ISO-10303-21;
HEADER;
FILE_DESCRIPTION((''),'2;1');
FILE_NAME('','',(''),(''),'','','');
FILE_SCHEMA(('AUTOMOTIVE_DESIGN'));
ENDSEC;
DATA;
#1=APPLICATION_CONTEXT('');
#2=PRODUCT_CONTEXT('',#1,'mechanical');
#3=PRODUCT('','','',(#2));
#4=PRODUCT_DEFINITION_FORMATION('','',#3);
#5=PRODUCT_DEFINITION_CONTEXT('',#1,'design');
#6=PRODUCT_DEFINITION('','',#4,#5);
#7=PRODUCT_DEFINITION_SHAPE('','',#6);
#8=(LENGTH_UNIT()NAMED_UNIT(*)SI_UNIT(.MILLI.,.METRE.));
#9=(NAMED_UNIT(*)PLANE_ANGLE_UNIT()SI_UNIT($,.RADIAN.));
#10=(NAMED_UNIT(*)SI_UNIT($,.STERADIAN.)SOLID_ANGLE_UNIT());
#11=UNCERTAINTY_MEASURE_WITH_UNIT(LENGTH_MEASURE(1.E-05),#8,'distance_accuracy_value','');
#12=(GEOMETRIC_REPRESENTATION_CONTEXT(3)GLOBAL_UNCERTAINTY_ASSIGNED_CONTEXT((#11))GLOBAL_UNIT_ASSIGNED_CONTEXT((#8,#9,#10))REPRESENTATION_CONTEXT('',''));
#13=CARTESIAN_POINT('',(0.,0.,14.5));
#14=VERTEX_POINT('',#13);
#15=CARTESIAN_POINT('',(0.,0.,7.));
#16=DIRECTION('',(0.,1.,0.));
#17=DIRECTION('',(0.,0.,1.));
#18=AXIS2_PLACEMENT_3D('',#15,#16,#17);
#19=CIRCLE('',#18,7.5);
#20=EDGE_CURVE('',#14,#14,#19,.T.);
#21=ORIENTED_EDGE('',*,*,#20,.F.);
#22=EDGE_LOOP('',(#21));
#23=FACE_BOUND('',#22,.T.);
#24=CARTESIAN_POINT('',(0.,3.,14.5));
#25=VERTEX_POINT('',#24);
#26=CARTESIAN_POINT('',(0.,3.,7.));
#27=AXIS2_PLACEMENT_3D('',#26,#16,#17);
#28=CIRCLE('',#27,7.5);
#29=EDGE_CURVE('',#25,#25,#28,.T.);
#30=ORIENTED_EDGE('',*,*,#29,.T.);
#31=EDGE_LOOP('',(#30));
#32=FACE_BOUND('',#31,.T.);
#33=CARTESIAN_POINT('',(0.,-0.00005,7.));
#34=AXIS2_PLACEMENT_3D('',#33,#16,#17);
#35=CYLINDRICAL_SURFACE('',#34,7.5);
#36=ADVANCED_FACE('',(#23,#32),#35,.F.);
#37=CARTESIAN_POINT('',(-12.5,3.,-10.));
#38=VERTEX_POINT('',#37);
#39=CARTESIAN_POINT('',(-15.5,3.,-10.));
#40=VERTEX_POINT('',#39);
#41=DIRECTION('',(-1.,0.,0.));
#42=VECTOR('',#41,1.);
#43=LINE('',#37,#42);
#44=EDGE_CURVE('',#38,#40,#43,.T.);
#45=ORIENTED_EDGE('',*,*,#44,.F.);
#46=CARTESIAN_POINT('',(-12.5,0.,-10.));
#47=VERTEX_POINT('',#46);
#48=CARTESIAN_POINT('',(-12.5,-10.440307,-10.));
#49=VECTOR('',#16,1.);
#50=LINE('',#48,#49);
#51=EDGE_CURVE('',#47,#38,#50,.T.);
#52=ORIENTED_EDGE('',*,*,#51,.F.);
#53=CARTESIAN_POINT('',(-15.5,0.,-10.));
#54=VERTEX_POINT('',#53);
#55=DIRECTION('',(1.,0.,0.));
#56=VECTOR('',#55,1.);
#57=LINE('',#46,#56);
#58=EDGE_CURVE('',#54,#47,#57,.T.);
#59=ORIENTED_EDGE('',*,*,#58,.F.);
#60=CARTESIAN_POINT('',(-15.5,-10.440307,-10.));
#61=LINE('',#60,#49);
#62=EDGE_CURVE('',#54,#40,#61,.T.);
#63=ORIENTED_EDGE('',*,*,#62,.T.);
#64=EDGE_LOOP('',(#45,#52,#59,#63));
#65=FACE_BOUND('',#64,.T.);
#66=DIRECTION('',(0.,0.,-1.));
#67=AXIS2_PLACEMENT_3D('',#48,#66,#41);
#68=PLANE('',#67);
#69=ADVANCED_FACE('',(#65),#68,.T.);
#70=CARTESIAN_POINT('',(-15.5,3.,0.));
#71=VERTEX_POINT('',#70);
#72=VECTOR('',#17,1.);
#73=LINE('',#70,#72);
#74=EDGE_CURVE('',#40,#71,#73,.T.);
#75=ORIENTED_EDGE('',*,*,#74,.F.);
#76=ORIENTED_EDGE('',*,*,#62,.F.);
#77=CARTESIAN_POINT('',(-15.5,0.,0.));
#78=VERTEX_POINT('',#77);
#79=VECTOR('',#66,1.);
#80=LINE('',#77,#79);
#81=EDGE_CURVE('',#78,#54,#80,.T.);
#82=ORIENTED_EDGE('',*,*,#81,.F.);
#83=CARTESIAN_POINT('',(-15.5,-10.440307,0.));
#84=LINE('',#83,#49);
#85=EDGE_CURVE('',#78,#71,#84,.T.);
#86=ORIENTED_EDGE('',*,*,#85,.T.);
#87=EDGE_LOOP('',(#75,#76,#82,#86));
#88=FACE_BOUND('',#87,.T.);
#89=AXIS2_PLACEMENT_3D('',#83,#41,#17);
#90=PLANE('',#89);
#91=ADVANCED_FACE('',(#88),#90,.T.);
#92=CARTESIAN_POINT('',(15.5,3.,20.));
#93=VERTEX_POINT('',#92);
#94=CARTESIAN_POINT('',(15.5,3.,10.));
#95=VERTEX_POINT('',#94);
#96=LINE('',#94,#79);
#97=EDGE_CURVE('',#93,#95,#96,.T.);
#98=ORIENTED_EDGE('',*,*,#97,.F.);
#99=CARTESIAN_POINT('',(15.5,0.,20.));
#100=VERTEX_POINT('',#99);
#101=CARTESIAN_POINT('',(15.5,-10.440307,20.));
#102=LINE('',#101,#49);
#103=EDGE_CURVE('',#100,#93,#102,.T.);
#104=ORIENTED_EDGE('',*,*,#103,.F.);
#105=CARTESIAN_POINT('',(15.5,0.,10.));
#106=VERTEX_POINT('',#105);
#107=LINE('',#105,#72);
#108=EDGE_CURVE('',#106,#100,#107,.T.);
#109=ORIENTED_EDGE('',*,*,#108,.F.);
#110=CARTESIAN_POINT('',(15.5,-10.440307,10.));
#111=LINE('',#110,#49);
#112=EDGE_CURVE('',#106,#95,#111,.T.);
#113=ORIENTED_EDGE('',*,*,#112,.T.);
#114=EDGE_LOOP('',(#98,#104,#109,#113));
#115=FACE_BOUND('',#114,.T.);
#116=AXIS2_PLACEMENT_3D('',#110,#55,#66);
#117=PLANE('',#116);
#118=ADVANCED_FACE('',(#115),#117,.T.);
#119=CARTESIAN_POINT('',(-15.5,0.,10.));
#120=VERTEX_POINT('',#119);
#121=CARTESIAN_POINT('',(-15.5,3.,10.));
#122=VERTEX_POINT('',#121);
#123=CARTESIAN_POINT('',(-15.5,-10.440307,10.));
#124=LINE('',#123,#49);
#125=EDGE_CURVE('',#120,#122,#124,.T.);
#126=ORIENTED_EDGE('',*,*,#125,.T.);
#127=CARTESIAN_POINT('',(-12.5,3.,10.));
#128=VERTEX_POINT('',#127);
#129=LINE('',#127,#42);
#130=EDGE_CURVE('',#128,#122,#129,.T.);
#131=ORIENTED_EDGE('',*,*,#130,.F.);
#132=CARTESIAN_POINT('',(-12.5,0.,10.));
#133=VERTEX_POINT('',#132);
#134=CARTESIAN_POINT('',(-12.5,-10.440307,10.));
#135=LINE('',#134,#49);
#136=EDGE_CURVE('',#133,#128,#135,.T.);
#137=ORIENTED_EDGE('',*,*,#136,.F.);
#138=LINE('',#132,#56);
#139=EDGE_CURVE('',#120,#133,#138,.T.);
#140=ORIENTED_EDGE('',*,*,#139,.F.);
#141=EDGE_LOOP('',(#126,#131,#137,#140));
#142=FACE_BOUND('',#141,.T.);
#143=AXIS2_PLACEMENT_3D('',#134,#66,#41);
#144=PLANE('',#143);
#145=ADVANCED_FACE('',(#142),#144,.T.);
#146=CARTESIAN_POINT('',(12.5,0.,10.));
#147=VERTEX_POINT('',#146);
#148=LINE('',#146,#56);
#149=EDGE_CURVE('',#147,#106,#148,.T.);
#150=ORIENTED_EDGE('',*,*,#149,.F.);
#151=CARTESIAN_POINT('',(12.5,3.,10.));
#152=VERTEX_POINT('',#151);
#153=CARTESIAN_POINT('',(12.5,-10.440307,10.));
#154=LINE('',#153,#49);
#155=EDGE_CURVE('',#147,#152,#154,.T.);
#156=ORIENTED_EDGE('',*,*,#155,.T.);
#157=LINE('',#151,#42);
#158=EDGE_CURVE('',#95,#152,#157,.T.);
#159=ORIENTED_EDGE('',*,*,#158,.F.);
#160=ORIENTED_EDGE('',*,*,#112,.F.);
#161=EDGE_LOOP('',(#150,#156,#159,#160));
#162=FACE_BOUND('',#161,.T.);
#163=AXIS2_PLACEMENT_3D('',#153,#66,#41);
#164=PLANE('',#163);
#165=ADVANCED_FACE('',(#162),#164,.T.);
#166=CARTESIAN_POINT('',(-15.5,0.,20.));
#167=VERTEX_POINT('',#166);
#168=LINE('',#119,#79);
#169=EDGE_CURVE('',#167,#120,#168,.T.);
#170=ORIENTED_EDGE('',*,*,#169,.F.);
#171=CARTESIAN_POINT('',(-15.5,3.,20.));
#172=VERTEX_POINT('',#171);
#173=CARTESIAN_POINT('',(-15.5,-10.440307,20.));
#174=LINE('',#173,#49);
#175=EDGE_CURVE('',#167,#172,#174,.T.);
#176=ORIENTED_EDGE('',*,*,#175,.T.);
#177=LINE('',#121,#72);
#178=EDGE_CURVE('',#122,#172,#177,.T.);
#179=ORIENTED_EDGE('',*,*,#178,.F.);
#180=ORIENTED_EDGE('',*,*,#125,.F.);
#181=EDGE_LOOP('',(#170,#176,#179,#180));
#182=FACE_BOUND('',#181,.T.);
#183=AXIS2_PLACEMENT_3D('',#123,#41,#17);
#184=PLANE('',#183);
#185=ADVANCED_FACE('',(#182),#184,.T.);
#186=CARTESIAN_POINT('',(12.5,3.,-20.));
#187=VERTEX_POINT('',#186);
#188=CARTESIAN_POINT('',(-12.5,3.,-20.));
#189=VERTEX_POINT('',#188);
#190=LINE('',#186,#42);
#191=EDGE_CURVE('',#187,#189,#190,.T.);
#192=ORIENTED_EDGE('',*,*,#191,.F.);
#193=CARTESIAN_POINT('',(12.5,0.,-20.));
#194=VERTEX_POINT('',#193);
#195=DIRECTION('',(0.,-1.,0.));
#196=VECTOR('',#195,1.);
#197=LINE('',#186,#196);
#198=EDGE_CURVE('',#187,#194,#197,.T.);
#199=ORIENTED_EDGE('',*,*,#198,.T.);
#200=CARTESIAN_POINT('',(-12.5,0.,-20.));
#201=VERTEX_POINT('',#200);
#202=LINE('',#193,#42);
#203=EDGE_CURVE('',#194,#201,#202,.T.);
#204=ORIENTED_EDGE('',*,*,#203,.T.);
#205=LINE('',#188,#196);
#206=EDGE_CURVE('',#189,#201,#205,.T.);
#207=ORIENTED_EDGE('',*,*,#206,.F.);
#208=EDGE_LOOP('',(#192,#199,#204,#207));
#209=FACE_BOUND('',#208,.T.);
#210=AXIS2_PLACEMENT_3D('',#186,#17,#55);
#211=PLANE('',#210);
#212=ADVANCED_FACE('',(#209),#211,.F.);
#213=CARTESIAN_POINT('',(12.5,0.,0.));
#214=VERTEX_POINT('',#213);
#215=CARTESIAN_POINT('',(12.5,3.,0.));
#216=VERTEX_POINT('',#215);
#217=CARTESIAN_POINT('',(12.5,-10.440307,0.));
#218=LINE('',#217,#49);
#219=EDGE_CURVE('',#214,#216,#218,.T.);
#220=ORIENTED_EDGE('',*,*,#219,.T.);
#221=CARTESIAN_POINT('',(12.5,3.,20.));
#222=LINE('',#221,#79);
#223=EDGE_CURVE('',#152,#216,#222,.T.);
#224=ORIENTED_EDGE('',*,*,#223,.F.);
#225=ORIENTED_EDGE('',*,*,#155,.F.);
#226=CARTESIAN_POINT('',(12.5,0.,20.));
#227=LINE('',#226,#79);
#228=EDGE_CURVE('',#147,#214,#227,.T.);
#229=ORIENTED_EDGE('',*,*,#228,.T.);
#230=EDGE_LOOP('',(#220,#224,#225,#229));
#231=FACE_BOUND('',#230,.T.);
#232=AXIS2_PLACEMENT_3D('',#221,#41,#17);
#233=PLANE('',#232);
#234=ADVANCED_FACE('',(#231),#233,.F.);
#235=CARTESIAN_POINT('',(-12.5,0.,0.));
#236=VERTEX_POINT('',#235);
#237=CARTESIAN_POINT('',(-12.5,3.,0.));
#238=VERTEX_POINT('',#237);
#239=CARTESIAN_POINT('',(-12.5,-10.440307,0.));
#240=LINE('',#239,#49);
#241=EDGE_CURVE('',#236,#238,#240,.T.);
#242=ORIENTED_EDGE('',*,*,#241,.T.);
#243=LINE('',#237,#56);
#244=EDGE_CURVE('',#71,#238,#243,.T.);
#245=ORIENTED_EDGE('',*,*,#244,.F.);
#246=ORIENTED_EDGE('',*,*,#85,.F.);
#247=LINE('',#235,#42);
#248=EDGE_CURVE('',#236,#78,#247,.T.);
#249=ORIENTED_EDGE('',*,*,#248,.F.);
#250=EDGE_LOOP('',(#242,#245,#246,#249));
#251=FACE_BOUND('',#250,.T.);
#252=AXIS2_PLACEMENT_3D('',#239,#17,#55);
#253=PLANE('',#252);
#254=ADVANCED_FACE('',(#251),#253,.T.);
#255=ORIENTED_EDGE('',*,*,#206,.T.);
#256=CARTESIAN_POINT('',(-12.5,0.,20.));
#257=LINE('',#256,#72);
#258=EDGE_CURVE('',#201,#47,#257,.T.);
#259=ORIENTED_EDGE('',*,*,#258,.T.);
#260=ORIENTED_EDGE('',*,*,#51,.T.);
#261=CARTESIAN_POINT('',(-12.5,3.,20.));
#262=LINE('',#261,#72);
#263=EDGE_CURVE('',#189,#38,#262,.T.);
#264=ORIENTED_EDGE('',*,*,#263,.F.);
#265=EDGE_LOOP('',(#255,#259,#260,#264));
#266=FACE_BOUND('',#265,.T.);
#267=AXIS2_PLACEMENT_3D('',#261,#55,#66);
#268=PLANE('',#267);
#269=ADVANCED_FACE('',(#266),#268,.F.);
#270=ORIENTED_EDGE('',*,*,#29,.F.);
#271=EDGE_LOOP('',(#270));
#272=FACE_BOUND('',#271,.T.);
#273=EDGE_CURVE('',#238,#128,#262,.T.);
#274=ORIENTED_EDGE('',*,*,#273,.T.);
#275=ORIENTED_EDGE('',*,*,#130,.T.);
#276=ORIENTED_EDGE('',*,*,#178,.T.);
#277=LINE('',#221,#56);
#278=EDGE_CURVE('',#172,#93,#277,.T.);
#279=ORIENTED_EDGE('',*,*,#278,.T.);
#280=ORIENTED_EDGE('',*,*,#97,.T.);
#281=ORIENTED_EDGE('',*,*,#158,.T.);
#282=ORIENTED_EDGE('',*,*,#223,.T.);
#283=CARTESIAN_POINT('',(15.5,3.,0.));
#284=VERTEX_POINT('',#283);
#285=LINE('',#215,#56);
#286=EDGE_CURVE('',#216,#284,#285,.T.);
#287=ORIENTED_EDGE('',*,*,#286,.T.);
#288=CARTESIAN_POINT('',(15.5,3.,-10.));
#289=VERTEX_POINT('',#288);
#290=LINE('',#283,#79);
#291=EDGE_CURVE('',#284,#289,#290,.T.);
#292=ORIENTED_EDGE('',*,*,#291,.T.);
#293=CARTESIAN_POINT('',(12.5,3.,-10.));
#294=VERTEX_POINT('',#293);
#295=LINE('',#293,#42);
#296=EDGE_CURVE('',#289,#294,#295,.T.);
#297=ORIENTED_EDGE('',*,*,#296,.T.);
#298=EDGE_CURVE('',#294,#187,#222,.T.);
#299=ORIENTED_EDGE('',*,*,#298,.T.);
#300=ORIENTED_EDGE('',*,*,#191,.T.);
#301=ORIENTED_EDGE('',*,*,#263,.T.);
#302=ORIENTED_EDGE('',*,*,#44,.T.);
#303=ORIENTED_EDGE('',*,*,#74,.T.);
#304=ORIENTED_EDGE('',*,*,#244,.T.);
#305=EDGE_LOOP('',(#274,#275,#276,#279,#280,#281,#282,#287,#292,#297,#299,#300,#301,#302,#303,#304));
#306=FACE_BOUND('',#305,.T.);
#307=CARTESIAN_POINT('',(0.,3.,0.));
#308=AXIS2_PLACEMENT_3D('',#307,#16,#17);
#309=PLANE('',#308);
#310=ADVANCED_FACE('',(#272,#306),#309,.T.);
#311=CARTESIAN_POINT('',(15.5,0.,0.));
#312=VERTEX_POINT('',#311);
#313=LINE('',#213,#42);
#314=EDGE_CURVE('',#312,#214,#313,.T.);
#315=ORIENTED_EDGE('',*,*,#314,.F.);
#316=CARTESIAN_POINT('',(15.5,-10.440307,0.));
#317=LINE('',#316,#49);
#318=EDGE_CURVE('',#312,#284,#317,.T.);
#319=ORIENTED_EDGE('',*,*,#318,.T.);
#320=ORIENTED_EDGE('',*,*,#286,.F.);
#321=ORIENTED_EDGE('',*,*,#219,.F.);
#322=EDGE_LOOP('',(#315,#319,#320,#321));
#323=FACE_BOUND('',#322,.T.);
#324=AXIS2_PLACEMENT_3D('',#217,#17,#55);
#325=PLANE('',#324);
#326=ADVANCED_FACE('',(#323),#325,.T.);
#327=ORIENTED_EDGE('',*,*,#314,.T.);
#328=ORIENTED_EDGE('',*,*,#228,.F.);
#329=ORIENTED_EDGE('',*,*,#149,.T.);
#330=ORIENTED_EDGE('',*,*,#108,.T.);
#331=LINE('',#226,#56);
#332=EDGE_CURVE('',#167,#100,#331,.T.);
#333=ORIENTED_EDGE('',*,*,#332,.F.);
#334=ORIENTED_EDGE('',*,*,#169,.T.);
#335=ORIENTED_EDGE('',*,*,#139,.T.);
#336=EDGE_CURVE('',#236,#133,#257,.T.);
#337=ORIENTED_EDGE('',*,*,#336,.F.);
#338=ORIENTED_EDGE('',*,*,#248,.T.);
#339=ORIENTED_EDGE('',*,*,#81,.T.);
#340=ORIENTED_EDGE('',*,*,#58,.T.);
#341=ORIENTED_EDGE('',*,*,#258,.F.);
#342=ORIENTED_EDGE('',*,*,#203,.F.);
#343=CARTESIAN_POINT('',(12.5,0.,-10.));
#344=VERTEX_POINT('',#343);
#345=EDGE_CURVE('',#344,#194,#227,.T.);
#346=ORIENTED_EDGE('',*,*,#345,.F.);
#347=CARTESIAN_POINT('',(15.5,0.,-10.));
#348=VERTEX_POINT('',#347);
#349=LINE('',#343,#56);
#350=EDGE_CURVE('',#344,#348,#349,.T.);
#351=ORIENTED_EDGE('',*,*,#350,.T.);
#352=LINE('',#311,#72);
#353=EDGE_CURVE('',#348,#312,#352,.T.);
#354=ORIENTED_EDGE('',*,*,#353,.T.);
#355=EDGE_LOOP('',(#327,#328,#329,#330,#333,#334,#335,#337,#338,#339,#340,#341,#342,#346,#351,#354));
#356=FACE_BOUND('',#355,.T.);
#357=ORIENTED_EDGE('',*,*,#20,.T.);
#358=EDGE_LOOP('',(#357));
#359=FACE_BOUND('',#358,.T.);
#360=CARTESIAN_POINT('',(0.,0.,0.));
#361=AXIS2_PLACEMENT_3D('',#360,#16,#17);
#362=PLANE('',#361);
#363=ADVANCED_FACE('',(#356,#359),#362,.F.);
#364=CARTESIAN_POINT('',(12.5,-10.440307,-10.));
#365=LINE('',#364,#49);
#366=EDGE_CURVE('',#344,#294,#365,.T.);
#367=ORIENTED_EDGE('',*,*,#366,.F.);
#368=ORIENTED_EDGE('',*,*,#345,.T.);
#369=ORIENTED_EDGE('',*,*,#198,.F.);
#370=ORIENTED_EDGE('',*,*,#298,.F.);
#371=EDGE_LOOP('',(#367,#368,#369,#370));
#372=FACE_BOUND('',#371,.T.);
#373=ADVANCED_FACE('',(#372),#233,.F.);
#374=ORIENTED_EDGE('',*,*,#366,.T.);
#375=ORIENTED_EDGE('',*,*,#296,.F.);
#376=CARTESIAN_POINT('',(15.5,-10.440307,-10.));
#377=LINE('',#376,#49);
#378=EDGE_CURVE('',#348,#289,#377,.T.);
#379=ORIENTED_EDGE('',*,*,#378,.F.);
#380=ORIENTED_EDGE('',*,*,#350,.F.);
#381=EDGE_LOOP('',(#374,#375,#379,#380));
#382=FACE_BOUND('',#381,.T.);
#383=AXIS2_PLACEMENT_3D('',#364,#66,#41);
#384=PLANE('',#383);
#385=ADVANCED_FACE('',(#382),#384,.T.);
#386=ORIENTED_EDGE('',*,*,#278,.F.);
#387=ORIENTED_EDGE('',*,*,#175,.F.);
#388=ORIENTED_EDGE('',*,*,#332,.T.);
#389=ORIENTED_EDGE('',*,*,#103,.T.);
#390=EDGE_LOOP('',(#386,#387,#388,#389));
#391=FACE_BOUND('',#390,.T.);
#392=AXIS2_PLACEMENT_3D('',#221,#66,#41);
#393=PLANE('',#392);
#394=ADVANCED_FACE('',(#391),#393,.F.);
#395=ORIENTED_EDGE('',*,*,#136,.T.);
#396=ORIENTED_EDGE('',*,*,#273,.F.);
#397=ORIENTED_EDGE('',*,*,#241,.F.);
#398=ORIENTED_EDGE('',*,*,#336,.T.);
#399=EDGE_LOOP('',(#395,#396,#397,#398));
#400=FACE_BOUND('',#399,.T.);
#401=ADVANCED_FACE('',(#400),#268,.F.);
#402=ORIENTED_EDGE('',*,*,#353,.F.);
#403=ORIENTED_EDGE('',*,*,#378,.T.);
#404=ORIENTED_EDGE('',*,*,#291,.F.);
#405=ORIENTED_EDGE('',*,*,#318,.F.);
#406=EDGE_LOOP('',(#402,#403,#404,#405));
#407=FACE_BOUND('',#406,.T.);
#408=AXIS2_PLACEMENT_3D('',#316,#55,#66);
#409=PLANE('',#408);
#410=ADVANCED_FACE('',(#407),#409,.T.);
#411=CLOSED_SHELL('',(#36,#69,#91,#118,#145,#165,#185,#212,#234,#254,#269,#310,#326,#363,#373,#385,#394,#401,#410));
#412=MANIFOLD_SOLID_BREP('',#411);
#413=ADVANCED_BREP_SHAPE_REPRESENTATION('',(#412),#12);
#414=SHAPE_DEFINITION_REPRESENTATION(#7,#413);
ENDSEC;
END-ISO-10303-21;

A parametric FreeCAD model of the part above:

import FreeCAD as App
import Part
import Sketcher

doc = App.newDocument("Part")
body = doc.addObject("PartDesign::Body", "Body")

sketch1 = body.newObject("Sketcher::SketchObject", "Sketch")
sketch1.AttachmentSupport = (doc.getObject("XZ_Plane"), [""])
sketch1.MapMode = "FlatFace"
sketch1.addGeometry([
    Part.LineSegment(App.Vector(-12, -20, 0), App.Vector(-12, 20, 0)),
    Part.LineSegment(App.Vector(-12, 20, 0), App.Vector(12, 20, 0)),
    Part.LineSegment(App.Vector(12, 20, 0), App.Vector(12, -20, 0)),
    Part.LineSegment(App.Vector(12, -20, 0), App.Vector(-12, -20, 0)),
], False)
sketch1.addConstraint([
    Sketcher.Constraint("Coincident", 0, 2, 1, 1),
    Sketcher.Constraint("Coincident", 1, 2, 2, 1),
    Sketcher.Constraint("Coincident", 2, 2, 3, 1),
    Sketcher.Constraint("Coincident", 3, 2, 0, 1),
    Sketcher.Constraint("Vertical", 0),
    Sketcher.Constraint("Horizontal", 1),
    Sketcher.Constraint("Vertical", 2),
    Sketcher.Constraint("Horizontal", 3),
    Sketcher.Constraint("Symmetric", 0, 2, 2, 2, -1, 1),
    Sketcher.Constraint("DistanceX", 1, 1, 1, 2, 25.0),
    Sketcher.Constraint("DistanceY", 0, 1, 0, 2, 40.0),
])
pad1 = body.newObject("PartDesign::Pad", "Pad")
pad1.Profile = sketch1
pad1.Length = 3
pad1.Reversed = True

sketch2 = body.newObject("Sketcher::SketchObject", "Sketch001")
sketch2.AttachmentSupport = (doc.getObject("XZ_Plane"), [""])
sketch2.MapMode = "FlatFace"
sketch2.AttachmentOffset = App.Placement(App.Vector(0, 0, -3), App.Rotation())
sketch2.addGeometry([
    Part.LineSegment(App.Vector(12.5, 10, 0), App.Vector(12.5, 20, 0)),
    Part.LineSegment(App.Vector(12.5, 20, 0), App.Vector(15.5, 20, 0)),
    Part.LineSegment(App.Vector(15.5, 20, 0), App.Vector(15.5, 10, 0)),
    Part.LineSegment(App.Vector(15.5, 10, 0), App.Vector(12.5, 10, 0)),
    Part.LineSegment(App.Vector(12.5, -10, 0), App.Vector(12.5, 0, 0)),
    Part.LineSegment(App.Vector(12.5, 0, 0), App.Vector(15.5, 0, 0)),
    Part.LineSegment(App.Vector(15.5, 0, 0), App.Vector(15.5, -10, 0)),
    Part.LineSegment(App.Vector(15.5, -10, 0), App.Vector(12.5, -10, 0)),
    Part.LineSegment(App.Vector(-15.5, 10, 0), App.Vector(-15.5, 20, 0)),
    Part.LineSegment(App.Vector(-15.5, 20, 0), App.Vector(-12.5, 20, 0)),
    Part.LineSegment(App.Vector(-12.5, 20, 0), App.Vector(-12.5, 10, 0)),
    Part.LineSegment(App.Vector(-12.5, 10, 0), App.Vector(-15.5, 10, 0)),
    Part.LineSegment(App.Vector(-15.5, -10, 0), App.Vector(-15.5, 0, 0)),
    Part.LineSegment(App.Vector(-15.5, 0, 0), App.Vector(-12.5, 0, 0)),
    Part.LineSegment(App.Vector(-12.5, 0, 0), App.Vector(-12.5, -10, 0)),
    Part.LineSegment(App.Vector(-12.5, -10, 0), App.Vector(-15.5, -10, 0)),
], False)
sketch2.addConstraint([
    Sketcher.Constraint("Coincident", 0, 2, 1, 1),
    Sketcher.Constraint("Coincident", 1, 2, 2, 1),
    Sketcher.Constraint("Coincident", 2, 2, 3, 1),
    Sketcher.Constraint("Coincident", 3, 2, 0, 1),
    Sketcher.Constraint("Coincident", 4, 2, 5, 1),
    Sketcher.Constraint("Coincident", 5, 2, 6, 1),
    Sketcher.Constraint("Coincident", 6, 2, 7, 1),
    Sketcher.Constraint("Coincident", 7, 2, 4, 1),
    Sketcher.Constraint("Coincident", 8, 2, 9, 1),
    Sketcher.Constraint("Coincident", 9, 2, 10, 1),
    Sketcher.Constraint("Coincident", 10, 2, 11, 1),
    Sketcher.Constraint("Coincident", 11, 2, 8, 1),
    Sketcher.Constraint("Coincident", 12, 2, 13, 1),
    Sketcher.Constraint("Coincident", 13, 2, 14, 1),
    Sketcher.Constraint("Coincident", 14, 2, 15, 1),
    Sketcher.Constraint("Coincident", 15, 2, 12, 1),
    Sketcher.Constraint("Vertical", 0),
    Sketcher.Constraint("Horizontal", 1),
    Sketcher.Constraint("Vertical", 2),
    Sketcher.Constraint("Horizontal", 3),
    Sketcher.Constraint("Vertical", 4),
    Sketcher.Constraint("Horizontal", 5),
    Sketcher.Constraint("Vertical", 6),
    Sketcher.Constraint("Horizontal", 7),
    Sketcher.Constraint("Vertical", 8),
    Sketcher.Constraint("Horizontal", 9),
    Sketcher.Constraint("Vertical", 10),
    Sketcher.Constraint("Horizontal", 11),
    Sketcher.Constraint("Vertical", 12),
    Sketcher.Constraint("Horizontal", 13),
    Sketcher.Constraint("Vertical", 14),
    Sketcher.Constraint("Horizontal", 15),
    Sketcher.Constraint("Symmetric", 7, 2, 10, 2, -1, 1),
    Sketcher.Constraint("Symmetric", 5, 2, 12, 2, -1, 1),
    Sketcher.Constraint("Symmetric", 3, 2, 14, 2, -1, 1),
    Sketcher.Constraint("Symmetric", 1, 2, 8, 2, -2),
    Sketcher.Constraint("Symmetric", 3, 2, 10, 2, -2),
    Sketcher.Constraint("PointOnObject", 4, 2, -1),
    Sketcher.Constraint("Vertical", 2, 2, 5, 2),
    Sketcher.Constraint("Equal", 2, 4),
    Sketcher.Constraint("DistanceX", 1, 1, 1, 2, 3.0),
    Sketcher.Constraint("DistanceY", 0, 1, 0, 2, 10.0),
    Sketcher.Constraint("DistanceX", 8, 2, 0, 2, 28.0),
])
pad2 = body.newObject("PartDesign::Pad", "Pad001")
pad2.Profile = sketch2
pad2.Length = 3

sketch3 = body.newObject("Sketcher::SketchObject", "Sketch002")
sketch3.AttachmentSupport = (doc.getObject("XZ_Plane"), [""])
sketch3.MapMode = "FlatFace"
sketch3.AttachmentOffset = App.Placement(App.Vector(0, 0, -3), App.Rotation())
sketch3.addGeometry(Part.Circle(App.Vector(0, 7, 0), App.Vector(0, 0, 1), 8), False)
sketch3.addConstraint([
    Sketcher.Constraint("PointOnObject", 0, 3, -2),
    Sketcher.Constraint("Diameter", 0, 15.0),
    Sketcher.Constraint("DistanceY", -1, 1, 0, 3, 7.0),
])
pocket1 = body.newObject("PartDesign::Pocket", "Pocket")
pocket1.Profile = sketch3
pocket1.Type = "ThroughAll"
pocket1.Reversed = True

doc.recompute()
